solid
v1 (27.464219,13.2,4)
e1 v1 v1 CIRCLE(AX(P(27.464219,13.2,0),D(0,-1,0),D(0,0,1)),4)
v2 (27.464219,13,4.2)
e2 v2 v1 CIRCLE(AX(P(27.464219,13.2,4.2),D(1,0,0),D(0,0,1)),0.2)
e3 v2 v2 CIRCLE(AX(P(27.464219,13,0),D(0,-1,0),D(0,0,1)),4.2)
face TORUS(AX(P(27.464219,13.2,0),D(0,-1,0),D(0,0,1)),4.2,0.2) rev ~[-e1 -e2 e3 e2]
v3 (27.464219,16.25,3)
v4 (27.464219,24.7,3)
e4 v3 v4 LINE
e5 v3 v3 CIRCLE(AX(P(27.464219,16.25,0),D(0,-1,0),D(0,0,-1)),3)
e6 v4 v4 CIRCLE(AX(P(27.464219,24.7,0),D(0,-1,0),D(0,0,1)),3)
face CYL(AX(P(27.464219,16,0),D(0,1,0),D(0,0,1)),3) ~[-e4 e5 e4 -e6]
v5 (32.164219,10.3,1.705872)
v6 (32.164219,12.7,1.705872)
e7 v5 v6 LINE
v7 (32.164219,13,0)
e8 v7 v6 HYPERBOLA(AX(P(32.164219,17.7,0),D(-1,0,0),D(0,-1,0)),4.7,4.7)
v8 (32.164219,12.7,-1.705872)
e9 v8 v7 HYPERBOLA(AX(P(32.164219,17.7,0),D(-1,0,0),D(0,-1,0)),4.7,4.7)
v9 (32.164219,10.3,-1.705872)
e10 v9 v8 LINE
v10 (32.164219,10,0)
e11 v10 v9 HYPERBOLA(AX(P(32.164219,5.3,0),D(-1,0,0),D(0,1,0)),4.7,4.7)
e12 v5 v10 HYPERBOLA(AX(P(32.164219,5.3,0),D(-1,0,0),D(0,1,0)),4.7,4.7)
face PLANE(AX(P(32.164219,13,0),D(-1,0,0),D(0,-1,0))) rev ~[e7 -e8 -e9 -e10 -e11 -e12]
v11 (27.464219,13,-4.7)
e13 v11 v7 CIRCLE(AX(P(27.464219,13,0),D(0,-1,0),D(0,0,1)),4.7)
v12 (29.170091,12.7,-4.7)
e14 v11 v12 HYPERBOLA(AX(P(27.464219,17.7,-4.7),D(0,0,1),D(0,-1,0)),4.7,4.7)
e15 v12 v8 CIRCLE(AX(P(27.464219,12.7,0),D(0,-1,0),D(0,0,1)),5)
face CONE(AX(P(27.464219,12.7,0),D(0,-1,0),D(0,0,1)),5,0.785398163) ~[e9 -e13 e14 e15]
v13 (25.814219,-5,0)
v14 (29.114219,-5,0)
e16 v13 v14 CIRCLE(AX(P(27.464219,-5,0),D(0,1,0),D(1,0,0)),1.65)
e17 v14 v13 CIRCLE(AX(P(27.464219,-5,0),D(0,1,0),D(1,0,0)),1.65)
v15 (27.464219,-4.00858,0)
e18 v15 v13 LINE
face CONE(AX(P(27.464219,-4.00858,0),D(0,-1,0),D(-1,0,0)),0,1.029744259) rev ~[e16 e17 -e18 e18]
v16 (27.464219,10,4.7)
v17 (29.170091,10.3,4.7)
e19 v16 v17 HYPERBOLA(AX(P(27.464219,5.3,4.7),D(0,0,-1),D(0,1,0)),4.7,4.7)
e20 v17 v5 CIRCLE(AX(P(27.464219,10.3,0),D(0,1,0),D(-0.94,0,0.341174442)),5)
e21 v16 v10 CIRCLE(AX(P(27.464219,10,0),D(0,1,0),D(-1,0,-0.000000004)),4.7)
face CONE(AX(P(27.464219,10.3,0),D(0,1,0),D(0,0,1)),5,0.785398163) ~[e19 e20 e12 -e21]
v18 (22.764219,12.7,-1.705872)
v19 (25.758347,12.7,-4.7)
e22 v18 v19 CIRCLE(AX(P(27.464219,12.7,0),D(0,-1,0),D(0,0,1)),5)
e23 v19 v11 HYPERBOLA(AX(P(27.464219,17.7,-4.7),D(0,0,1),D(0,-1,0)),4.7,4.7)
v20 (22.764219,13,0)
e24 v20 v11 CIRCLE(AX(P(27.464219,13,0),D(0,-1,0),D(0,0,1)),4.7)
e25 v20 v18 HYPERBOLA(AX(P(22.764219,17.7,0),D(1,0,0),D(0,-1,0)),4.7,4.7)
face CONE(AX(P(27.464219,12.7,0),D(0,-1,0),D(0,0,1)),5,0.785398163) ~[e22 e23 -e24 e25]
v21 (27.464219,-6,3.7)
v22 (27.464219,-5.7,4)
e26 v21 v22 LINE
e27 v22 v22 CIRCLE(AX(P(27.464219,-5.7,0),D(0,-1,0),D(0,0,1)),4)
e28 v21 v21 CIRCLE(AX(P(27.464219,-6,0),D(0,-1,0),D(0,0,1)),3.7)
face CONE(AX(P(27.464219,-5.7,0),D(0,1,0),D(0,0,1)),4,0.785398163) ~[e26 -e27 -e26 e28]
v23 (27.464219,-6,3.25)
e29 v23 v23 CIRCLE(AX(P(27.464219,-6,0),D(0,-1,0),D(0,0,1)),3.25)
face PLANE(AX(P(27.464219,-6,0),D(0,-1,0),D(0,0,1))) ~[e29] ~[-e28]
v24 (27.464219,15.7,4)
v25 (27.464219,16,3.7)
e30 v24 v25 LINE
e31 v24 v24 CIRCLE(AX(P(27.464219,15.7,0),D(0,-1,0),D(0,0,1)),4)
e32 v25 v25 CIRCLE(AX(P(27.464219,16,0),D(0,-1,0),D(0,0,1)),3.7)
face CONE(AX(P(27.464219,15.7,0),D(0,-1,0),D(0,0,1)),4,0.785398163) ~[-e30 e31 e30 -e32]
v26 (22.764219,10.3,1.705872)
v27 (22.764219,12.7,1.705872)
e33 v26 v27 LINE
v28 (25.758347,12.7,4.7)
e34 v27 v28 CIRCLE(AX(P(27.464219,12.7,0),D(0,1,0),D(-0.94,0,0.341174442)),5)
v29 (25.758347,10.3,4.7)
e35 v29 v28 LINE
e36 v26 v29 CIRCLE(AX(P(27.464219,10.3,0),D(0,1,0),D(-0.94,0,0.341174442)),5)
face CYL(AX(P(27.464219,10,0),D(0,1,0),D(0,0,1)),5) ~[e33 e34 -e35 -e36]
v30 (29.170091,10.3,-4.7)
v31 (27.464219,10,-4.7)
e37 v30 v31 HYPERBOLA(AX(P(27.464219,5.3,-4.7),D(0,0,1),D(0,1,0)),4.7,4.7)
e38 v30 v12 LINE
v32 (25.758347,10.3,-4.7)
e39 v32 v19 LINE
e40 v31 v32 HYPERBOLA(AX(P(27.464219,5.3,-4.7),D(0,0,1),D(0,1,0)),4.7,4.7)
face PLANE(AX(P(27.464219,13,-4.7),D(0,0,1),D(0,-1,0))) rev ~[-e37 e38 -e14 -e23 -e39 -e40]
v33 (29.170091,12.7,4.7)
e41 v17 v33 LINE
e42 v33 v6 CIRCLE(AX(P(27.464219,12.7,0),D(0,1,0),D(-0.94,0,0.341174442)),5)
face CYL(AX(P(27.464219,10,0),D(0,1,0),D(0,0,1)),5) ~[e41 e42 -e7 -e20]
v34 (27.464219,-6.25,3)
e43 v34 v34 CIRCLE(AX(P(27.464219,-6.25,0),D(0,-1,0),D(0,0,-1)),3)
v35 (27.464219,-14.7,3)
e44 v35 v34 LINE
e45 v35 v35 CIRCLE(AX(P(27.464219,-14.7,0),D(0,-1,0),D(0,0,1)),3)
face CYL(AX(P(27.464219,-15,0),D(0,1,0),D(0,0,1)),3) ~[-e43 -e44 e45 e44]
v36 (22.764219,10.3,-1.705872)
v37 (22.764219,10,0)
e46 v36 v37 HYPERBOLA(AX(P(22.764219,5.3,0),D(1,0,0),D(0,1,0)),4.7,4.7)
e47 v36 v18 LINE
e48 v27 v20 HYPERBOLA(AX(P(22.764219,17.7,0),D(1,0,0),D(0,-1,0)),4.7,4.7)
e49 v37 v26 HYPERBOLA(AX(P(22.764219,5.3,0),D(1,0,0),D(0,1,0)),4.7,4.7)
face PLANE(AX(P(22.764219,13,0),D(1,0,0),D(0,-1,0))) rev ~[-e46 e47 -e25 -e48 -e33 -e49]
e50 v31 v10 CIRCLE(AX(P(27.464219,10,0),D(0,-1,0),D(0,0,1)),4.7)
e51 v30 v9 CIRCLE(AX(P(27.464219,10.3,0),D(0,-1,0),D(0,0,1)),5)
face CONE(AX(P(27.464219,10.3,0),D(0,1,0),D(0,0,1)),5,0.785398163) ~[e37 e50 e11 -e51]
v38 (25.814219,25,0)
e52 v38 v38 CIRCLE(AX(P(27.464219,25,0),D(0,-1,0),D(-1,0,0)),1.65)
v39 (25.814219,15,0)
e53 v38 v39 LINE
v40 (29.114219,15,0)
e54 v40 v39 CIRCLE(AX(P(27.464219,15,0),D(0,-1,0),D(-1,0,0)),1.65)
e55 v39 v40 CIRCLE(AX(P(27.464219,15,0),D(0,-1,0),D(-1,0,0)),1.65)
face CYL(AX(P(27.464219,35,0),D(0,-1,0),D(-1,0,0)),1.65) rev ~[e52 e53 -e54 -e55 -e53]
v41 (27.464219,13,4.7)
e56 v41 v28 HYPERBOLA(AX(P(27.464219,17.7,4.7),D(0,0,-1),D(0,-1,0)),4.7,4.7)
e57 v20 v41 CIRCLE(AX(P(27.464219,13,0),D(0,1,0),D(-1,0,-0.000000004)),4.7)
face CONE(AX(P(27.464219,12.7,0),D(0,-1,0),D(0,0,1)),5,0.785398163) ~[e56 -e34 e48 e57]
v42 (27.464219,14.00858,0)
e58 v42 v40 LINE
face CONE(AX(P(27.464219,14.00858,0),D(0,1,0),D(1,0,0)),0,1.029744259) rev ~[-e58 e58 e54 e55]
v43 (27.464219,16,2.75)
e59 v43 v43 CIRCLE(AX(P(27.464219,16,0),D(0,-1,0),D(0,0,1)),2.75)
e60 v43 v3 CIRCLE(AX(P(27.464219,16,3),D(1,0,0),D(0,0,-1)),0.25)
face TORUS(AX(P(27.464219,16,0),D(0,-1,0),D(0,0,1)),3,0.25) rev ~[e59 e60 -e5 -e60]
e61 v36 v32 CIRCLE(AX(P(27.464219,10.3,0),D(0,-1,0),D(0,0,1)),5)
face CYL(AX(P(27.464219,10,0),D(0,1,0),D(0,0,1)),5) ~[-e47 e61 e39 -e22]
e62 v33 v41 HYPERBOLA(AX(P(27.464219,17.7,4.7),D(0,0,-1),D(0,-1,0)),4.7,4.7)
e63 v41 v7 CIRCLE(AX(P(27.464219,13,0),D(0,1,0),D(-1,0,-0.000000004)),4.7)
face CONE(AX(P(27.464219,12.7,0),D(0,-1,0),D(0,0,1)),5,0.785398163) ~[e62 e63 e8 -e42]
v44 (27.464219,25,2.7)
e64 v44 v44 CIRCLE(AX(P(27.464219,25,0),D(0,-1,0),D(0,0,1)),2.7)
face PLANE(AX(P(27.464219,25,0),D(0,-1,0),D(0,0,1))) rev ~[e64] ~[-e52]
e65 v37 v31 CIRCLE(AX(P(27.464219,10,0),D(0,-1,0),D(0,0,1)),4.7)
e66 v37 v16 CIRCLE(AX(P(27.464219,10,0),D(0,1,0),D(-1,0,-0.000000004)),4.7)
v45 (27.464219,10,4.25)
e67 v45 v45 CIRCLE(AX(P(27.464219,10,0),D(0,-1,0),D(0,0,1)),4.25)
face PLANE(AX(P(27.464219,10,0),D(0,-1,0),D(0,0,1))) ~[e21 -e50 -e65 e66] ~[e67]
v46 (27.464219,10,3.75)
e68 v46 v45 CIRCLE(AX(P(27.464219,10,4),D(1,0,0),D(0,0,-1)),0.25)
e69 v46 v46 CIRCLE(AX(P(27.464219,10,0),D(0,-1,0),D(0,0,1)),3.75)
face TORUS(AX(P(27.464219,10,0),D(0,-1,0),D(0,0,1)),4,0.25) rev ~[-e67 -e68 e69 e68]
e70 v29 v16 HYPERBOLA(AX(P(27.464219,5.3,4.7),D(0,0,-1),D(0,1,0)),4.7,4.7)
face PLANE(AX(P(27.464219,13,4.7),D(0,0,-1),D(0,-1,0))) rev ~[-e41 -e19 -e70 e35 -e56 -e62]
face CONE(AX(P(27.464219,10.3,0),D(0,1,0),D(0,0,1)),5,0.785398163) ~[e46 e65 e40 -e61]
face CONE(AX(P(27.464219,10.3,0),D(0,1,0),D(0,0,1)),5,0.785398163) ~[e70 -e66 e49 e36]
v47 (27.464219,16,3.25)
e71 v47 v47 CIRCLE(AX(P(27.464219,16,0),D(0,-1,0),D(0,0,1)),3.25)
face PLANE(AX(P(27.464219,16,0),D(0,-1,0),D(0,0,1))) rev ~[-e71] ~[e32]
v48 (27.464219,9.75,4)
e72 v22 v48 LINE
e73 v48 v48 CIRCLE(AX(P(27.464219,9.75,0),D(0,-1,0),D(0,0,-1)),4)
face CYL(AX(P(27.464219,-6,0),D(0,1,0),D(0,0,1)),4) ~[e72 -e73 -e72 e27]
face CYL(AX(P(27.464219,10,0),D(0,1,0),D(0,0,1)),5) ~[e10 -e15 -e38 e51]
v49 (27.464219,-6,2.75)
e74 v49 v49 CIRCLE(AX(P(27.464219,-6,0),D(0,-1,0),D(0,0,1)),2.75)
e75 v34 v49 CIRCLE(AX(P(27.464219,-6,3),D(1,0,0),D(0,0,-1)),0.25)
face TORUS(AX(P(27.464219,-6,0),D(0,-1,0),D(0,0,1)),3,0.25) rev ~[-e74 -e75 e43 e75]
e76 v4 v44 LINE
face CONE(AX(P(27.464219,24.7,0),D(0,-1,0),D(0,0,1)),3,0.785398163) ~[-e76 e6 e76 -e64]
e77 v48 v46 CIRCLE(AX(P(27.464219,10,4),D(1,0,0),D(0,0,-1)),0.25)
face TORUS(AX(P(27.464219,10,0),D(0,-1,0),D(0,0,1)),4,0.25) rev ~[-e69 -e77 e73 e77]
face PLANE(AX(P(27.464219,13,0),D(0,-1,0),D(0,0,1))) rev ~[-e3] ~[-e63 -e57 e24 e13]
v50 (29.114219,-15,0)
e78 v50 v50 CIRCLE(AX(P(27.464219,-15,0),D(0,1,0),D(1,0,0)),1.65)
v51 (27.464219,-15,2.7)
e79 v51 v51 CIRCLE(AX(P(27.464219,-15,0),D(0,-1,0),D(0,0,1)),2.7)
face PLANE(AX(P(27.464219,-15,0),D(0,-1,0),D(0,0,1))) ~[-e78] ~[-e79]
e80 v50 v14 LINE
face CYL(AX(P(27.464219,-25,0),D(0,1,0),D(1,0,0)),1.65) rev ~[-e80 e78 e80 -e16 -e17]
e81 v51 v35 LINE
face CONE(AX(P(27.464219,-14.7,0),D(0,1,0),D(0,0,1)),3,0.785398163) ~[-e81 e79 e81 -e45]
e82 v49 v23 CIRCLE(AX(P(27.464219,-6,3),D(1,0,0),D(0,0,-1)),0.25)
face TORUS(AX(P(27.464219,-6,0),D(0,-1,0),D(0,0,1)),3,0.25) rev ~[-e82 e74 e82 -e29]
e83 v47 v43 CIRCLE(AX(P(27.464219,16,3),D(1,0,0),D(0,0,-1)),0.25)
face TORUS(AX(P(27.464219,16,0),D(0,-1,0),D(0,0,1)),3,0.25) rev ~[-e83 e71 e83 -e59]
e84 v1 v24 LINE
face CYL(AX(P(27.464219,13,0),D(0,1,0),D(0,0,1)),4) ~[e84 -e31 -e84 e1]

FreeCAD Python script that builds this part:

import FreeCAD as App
import Part
import Sketcher


def edges_at(feature, points):
    """Names of the edges that pass closest to the given points."""
    edges = feature.Shape.Edges
    near = lambda p: min(range(len(edges)), key=lambda i: edges[i].distToShape(Part.Vertex(*p))[0])
    return sorted({f"Edge{near(p) + 1}" for p in points})


def add_polygon(sketch, points):
    """Adds a closed chain of lines whose ends are joined by coincident constraints."""
    first, n = sketch.GeometryCount, len(points)
    for a, b in zip(points, points[1:] + points[:1]):
        sketch.addGeometry(Part.LineSegment(App.Vector(*a, 0), App.Vector(*b, 0)), False)
    for i in range(n):
        sketch.addConstraint(Sketcher.Constraint("Coincident", first + i, 2, first + (i + 1) % n, 1))

doc = App.newDocument("Part")
body = doc.addObject("PartDesign::Body", "Body")

# Sketch on XY plane
sketch1 = body.newObject("Sketcher::SketchObject", "Sketch")
sketch1.AttachmentSupport = (doc.getObject("XY_Plane"), [""])
sketch1.MapMode = "FlatFace"
add_polygon(sketch1, [(27.464219, -15), (27.464219, 25), (24.464219, 25), (24.464219, 16), (23.464219, 16), (23.464219, 13), (22.464219, 13), (22.464219, 10), (23.464219, 10), (23.464219, -6), (24.464219, -6), (24.464219, -15)])  # lines 0-11
sketch1.addGeometry(Part.LineSegment(App.Vector(27.464219, 25, 0), App.Vector(27.464219, -15, 0)), True)  # axis
sketch1.addConstraint(Sketcher.Constraint("Vertical", 0))
sketch1.addConstraint(Sketcher.Constraint("Horizontal", 1))
sketch1.addConstraint(Sketcher.Constraint("Vertical", 2))
sketch1.addConstraint(Sketcher.Constraint("Horizontal", 3))
sketch1.addConstraint(Sketcher.Constraint("Vertical", 4))
sketch1.addConstraint(Sketcher.Constraint("Horizontal", 5))
sketch1.addConstraint(Sketcher.Constraint("Vertical", 6))
sketch1.addConstraint(Sketcher.Constraint("Horizontal", 7))
sketch1.addConstraint(Sketcher.Constraint("Vertical", 8))
sketch1.addConstraint(Sketcher.Constraint("Horizontal", 9))
sketch1.addConstraint(Sketcher.Constraint("Vertical", 10))
sketch1.addConstraint(Sketcher.Constraint("Horizontal", 11))
sketch1.addConstraint(Sketcher.Constraint("Vertical", 12))
sketch1.addConstraint(Sketcher.Constraint("Coincident", 12, 1, 0, 2))
sketch1.addConstraint(Sketcher.Constraint("Horizontal", 10, 2, 12, 2))
sketch1.addConstraint(Sketcher.Constraint("Vertical", 4, 2, 7, 2))
sketch1.addConstraint(Sketcher.Constraint("Vertical", 2, 2, 9, 2))
sketch1.addConstraint(Sketcher.Constraint("Equal", 3, 5))
sketch1.addConstraint(Sketcher.Constraint("Equal", 11, 4))
sketch1.addConstraint(Sketcher.Constraint("Equal", 4, 6))
sketch1.addConstraint(Sketcher.Constraint("Equal", 2, 10))
sketch1.addConstraint(Sketcher.Constraint("DistanceX", 1, 2, 1, 1, 3.0))
sketch1.addConstraint(Sketcher.Constraint("DistanceX", 3, 2, 3, 1, 1.0))
sketch1.addConstraint(Sketcher.Constraint("DistanceY", 0, 1, 0, 2, 40.0))
sketch1.addConstraint(Sketcher.Constraint("DistanceY", 2, 2, 2, 1, 9.0))
sketch1.addConstraint(Sketcher.Constraint("DistanceY", -1, 1, 0, 2, 25.0))
sketch1.addConstraint(Sketcher.Constraint("DistanceX", -1, 1, 0, 2, 27.464219))
revolution = body.newObject("PartDesign::Revolution", "Revolution")
revolution.Profile = sketch1
revolution.ReferenceAxis = (sketch1, ["Axis0"])
revolution.Angle = 360

# Sketch on XY plane
sketch2 = body.newObject("Sketcher::SketchObject", "Sketch001")
sketch2.AttachmentSupport = (doc.getObject("XY_Plane"), [""])
sketch2.MapMode = "FlatFace"
sketch2.addGeometry(Part.Circle(App.Vector(24.464219, -6, 0), App.Vector(0, 0, 1), 0.25), False)
sketch2.addGeometry(Part.Circle(App.Vector(23.464219, 10, 0), App.Vector(0, 0, 1), 0.25), False)
sketch2.addGeometry(Part.Circle(App.Vector(24.464219, 16, 0), App.Vector(0, 0, 1), 0.25), False)
sketch2.addGeometry(Part.LineSegment(App.Vector(27.464219, 16, 0), App.Vector(27.464219, -6, 0)), True)  # axis
sketch2.addConstraint(Sketcher.Constraint("Vertical", 3))
sketch2.addConstraint(Sketcher.Constraint("Equal", 0, 1))
sketch2.addConstraint(Sketcher.Constraint("Equal", 1, 2))
sketch2.addConstraint(Sketcher.Constraint("Horizontal", 2, 3, 3, 1))
sketch2.addConstraint(Sketcher.Constraint("Horizontal", 0, 3, 3, 2))
sketch2.addConstraint(Sketcher.Constraint("Vertical", 0, 3, 2, 3))
sketch2.addConstraint(Sketcher.Constraint("Diameter", 0, 0.5))
sketch2.addConstraint(Sketcher.Constraint("DistanceY", 3, 2, 3, 1, 22.0))
sketch2.addConstraint(Sketcher.Constraint("DistanceY", 0, 3, -1, 1, 6.0))
sketch2.addConstraint(Sketcher.Constraint("DistanceY", -1, 1, 1, 3, 10.0))
sketch2.addConstraint(Sketcher.Constraint("DistanceX", 1, 3, 0, 3, 1.0))
sketch2.addConstraint(Sketcher.Constraint("DistanceX", 2, 3, 3, 1, 3.0))
sketch2.addConstraint(Sketcher.Constraint("DistanceX", -1, 1, 0, 3, 24.464219))
groove = body.newObject("PartDesign::Groove", "Groove")
groove.Profile = sketch2
groove.ReferenceAxis = (sketch2, ["Axis0"])
groove.Angle = 360
doc.recompute()

chamfer = body.newObject("PartDesign::Chamfer", "Chamfer")
chamfer.Base = (groove, edges_at(groove, [
    (27.464, 16, -4),
    (27.464, 13, -5),
    (27.464, 10, -5),
    (27.464, -6, -4),
    (27.464, -15, -3),
    (27.464, 25, -3),
]))
chamfer.Size = 0.3
doc.recompute()

fillet = body.newObject("PartDesign::Fillet", "Fillet")
fillet.Base = (chamfer, edges_at(chamfer, [(27.464, 13, -4)]))
fillet.Radius = 0.2

# Sketch on XZ plane
sketch3 = body.newObject("Sketcher::SketchObject", "Sketch002")
sketch3.AttachmentSupport = (doc.getObject("XZ_Plane"), [""])
sketch3.MapMode = "FlatFace"
sketch3.AttachmentOffset = App.Placement(App.Vector(0, 0, -25), App.Rotation())
sketch3.addGeometry(Part.Circle(App.Vector(27.464219, 0, 0), App.Vector(0, 0, 1), 1.65), False)
sketch3.addConstraint(Sketcher.Constraint("PointOnObject", 0, 3, -1))
sketch3.addConstraint(Sketcher.Constraint("Diameter", 0, 3.3))
sketch3.addConstraint(Sketcher.Constraint("DistanceX", -1, 1, 0, 3, 27.464219))
doc.recompute()
hole = body.newObject("PartDesign::Hole", "Hole")
hole.Profile = sketch3
hole.ThreadType = "None"
hole.Diameter = 3.3
hole.DepthType = "Dimension"
hole.Depth = 10
hole.DrillPoint = "Angled"
hole.DrillPointAngle = 118
hole.Reversed = True

# Sketch on XZ plane
sketch4 = body.newObject("Sketcher::SketchObject", "Sketch003")
sketch4.AttachmentSupport = (doc.getObject("XZ_Plane"), [""])
sketch4.MapMode = "FlatFace"
sketch4.AttachmentOffset = App.Placement(App.Vector(0, 0, 15), App.Rotation())
sketch4.addGeometry(Part.Circle(App.Vector(27.464219, 0, 0), App.Vector(0, 0, 1), 1.65), False)
sketch4.addConstraint(Sketcher.Constraint("PointOnObject", 0, 3, -1))
sketch4.addConstraint(Sketcher.Constraint("Diameter", 0, 3.3))
sketch4.addConstraint(Sketcher.Constraint("DistanceX", -1, 1, 0, 3, 27.464219))
doc.recompute()
hole2 = body.newObject("PartDesign::Hole", "Hole001")
hole2.Profile = sketch4
hole2.ThreadType = "None"
hole2.Diameter = 3.3
hole2.DepthType = "Dimension"
hole2.Depth = 10
hole2.DrillPoint = "Angled"
hole2.DrillPointAngle = 118

# Sketch on XY plane
sketch5 = body.newObject("Sketcher::SketchObject", "Sketch004")
sketch5.AttachmentSupport = (doc.getObject("XY_Plane"), [""])
sketch5.MapMode = "FlatFace"
add_polygon(sketch5, [(22.764219, 10), (22.764219, 13), (22.464219, 12.7), (22.464219, 10.3)])  # lines 0-3
add_polygon(sketch5, [(32.164219, 13), (32.164219, 10), (32.464219, 10.3), (32.464219, 12.7)])  # lines 4-7
sketch5.addConstraint(Sketcher.Constraint("Vertical", 0))
sketch5.addConstraint(Sketcher.Constraint("Vertical", 2))
sketch5.addConstraint(Sketcher.Constraint("Vertical", 4))
sketch5.addConstraint(Sketcher.Constraint("Vertical", 6))
sketch5.addConstraint(Sketcher.Constraint("Perpendicular", 1, 3))
sketch5.addConstraint(Sketcher.Constraint("Perpendicular", 3, 5))
sketch5.addConstraint(Sketcher.Constraint("Perpendicular", 5, 7))
sketch5.addConstraint(Sketcher.Constraint("Horizontal", 3, 2, 4, 2))
sketch5.addConstraint(Sketcher.Constraint("Horizontal", 2, 2, 5, 2))
sketch5.addConstraint(Sketcher.Constraint("Horizontal", 1, 2, 6, 2))
sketch5.addConstraint(Sketcher.Constraint("Horizontal", 0, 2, 7, 2))
sketch5.addConstraint(Sketcher.Constraint("DistanceY", 0, 1, 0, 2, 3.0))
sketch5.addConstraint(Sketcher.Constraint("DistanceY", 2, 2, 2, 1, 2.4))
sketch5.addConstraint(Sketcher.Constraint("DistanceY", -1, 1, 0, 2, 13.0))
sketch5.addConstraint(Sketcher.Constraint("DistanceX", 2, 2, 5, 2, 10.0))
sketch5.addConstraint(Sketcher.Constraint("DistanceX", -1, 1, 0, 2, 22.764219))
pocket1 = body.newObject("PartDesign::Pocket", "Pocket")
pocket1.Profile = sketch5
pocket1.Length = 84.557265
pocket1.Midplane = True
doc.recompute()

datumline = body.newObject("PartDesign::Line", "DatumLine")
datumline.Placement = App.Placement(App.Vector(27.464219, 0, 0), App.Rotation(App.Vector(0, 0, 1), App.Vector(0, 1, 0)))
polarpattern = body.newObject("PartDesign::PolarPattern", "PolarPattern")
polarpattern.Originals = [pocket1]
polarpattern.Axis = (datumline, [""])
polarpattern.Angle = 360
polarpattern.Occurrences = 4
body.Tip = polarpattern

doc.recompute()
